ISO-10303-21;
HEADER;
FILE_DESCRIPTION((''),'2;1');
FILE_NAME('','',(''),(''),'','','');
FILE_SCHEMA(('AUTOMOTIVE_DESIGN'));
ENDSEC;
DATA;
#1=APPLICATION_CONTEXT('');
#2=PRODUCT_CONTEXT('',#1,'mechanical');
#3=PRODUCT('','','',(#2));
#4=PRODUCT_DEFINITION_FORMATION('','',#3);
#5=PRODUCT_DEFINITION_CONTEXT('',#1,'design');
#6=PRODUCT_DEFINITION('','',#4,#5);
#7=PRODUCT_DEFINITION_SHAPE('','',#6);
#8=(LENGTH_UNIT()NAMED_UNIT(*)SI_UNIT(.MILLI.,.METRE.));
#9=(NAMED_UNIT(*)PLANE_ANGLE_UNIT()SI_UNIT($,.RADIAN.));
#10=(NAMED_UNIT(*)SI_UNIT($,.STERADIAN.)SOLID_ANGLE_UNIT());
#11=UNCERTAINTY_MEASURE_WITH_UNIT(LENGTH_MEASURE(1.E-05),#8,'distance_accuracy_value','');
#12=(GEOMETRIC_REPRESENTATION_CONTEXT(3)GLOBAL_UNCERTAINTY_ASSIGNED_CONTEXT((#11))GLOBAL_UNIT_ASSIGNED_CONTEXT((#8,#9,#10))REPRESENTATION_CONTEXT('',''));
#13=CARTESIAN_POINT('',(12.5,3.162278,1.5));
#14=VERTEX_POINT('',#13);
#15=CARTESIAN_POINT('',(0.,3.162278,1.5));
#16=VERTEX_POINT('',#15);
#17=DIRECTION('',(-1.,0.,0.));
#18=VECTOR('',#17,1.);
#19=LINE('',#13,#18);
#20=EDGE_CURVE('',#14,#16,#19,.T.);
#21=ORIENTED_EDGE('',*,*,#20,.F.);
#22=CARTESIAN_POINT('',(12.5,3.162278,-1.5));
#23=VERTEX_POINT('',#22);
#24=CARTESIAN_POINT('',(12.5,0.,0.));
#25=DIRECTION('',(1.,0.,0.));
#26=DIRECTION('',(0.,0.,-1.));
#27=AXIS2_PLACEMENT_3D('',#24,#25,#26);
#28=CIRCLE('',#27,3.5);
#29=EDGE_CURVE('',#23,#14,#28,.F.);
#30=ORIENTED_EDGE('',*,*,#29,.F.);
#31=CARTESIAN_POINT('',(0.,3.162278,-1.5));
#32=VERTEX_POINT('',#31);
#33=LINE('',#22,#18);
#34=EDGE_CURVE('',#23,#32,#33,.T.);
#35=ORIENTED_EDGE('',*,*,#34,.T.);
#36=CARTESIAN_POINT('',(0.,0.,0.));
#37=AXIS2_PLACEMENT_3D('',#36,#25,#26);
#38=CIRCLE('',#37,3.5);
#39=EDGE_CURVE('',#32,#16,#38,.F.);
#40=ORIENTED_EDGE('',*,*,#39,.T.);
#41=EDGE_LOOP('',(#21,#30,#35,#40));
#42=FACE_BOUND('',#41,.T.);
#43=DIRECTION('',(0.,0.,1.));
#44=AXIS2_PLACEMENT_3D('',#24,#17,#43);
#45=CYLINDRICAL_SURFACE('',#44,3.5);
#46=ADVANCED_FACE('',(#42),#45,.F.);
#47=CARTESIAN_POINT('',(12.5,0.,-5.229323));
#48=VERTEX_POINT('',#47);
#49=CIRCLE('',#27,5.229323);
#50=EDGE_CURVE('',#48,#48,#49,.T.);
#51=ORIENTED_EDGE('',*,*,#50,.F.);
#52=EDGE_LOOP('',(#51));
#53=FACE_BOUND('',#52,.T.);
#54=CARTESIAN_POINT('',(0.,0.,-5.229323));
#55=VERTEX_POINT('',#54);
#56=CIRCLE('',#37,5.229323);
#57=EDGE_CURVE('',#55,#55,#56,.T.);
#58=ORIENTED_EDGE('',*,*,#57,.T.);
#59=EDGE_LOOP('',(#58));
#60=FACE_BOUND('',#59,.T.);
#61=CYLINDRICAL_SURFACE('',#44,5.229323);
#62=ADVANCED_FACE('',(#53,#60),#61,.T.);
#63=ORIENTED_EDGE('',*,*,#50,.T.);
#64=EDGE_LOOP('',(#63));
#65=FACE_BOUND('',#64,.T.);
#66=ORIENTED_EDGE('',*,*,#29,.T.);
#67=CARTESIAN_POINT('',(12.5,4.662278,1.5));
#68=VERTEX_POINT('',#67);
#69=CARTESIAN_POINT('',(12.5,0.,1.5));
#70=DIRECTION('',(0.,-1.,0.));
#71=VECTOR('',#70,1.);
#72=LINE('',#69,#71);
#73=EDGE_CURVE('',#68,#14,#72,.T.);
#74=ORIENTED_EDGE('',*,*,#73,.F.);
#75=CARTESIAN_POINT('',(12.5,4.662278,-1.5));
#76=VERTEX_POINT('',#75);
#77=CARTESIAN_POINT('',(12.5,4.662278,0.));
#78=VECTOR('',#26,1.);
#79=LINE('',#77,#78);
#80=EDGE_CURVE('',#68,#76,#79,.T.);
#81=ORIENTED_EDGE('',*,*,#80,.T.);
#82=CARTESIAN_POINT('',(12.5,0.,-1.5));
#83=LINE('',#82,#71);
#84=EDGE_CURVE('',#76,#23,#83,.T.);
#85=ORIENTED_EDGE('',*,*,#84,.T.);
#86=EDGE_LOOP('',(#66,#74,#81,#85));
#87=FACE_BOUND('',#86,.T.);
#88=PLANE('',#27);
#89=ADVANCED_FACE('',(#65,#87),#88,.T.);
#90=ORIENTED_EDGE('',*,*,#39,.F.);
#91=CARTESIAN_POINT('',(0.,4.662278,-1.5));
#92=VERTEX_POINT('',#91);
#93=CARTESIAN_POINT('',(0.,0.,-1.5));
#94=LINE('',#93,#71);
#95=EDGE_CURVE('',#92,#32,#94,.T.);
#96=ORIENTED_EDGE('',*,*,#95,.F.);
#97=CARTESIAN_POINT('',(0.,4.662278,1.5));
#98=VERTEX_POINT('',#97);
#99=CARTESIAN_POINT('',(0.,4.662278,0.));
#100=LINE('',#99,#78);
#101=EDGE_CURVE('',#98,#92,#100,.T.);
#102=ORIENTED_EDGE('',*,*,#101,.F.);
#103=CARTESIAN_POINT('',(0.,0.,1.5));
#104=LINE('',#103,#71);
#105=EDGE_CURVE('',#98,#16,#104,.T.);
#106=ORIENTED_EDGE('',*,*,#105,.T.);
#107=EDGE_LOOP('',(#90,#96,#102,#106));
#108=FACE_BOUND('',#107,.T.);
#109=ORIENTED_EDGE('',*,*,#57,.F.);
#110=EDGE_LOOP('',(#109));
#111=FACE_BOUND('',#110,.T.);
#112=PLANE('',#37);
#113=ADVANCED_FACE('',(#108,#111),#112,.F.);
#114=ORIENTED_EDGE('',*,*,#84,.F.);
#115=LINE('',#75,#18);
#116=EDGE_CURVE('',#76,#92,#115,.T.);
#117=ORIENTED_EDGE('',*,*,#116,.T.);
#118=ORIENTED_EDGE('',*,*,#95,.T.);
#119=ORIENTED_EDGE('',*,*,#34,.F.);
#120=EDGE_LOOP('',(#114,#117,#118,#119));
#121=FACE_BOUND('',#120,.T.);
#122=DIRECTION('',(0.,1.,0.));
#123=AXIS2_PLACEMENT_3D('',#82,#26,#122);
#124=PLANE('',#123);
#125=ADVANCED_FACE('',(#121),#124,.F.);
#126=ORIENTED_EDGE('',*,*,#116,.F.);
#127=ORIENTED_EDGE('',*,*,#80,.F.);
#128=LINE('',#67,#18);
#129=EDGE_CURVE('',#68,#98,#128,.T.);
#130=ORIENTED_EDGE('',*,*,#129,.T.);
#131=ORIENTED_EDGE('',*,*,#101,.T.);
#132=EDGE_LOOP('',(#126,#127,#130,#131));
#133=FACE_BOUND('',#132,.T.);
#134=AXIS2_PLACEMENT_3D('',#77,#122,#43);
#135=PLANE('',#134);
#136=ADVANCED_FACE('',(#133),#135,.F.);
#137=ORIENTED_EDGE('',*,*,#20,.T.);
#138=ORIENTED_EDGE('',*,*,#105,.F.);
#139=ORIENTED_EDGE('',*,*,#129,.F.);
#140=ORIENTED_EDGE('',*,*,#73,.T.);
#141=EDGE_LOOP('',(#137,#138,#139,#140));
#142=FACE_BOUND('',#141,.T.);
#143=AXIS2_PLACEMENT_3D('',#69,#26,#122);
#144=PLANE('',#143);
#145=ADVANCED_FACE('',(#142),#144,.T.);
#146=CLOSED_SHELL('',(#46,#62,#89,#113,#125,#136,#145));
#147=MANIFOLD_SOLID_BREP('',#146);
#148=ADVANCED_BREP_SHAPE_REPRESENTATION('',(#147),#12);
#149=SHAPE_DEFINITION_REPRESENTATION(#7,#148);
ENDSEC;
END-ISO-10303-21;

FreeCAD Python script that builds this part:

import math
import FreeCAD as App
import Part
import Sketcher

V = App.Vector
Q = App.Units.Quantity

doc = App.newDocument("Part")
params = doc.addObject("Spreadsheet::Sheet", "Params")
for row, (alias, value) in enumerate([
    ("sketch1_radius", "3.5 mm"),
    ("sketch1_height", "3 mm"),
    ("sketch1_width", "1.5 mm"),
    ("pad1_length", "12.5 mm"),
], start=1):
    params.set(f"A{row}", alias)
    params.set(f"B{row}", "=" + value)
    params.setAlias(f"B{row}", alias)

body = doc.addObject("PartDesign::Body", "Body")

sketch1 = body.newObject("Sketcher::SketchObject", "Sketch")
sketch1.AttachmentSupport = (doc.getObject("YZ_Plane"), [""])
sketch1.MapMode = "FlatFace"
sketch1.addGeometry([
    Part.Circle(V(0, 0, 0), V(0, 0, 1), 5.2),
    Part.LineSegment(V(4.7, 1.5, 0), V(4.7, -1.5, 0)),
    Part.LineSegment(V(4.7, -1.5, 0), V(3.2, -1.5, 0)),
    Part.ArcOfCircle(Part.Circle(V(0, 0, 0), V(0, 0, 1), 3.5), math.radians(25), math.radians(335)),
    Part.LineSegment(V(3.2, 1.5, 0), V(4.7, 1.5, 0)),
], False)
sketch1.addConstraint([
    Sketcher.Constraint("Coincident", 1, 2, 2, 1),
    Sketcher.Constraint("Coincident", 2, 2, 3, 2),
    Sketcher.Constraint("Coincident", 3, 1, 4, 1),
    Sketcher.Constraint("Coincident", 4, 2, 1, 1),
    Sketcher.Constraint("Vertical", 1),
    Sketcher.Constraint("Horizontal", 2),
    Sketcher.Constraint("Horizontal", 4),
    Sketcher.Constraint("Coincident", 0, 3, -1, 1),
    Sketcher.Constraint("Coincident", 3, 3, -1, 1),
    Sketcher.Constraint("Vertical", 2, 2, 3, 1),
    Sketcher.Constraint("Radius", 3, Q("3.5 mm")),
    Sketcher.Constraint("DistanceY", 1, 2, 1, 1, Q("3 mm")),
    Sketcher.Constraint("DistanceX", 2, 2, 2, 1, Q("1.5 mm")),
    Sketcher.Constraint("Diameter", 0, Q("10.458646 mm")),
])
sketch1.setExpression("Constraints[10]", "Params.sketch1_radius")
sketch1.setExpression("Constraints[11]", "Params.sketch1_height")
sketch1.setExpression("Constraints[12]", "Params.sketch1_width")
pad1 = body.newObject("PartDesign::Pad", "Pad")
pad1.Profile = sketch1
pad1.setExpression("Length", "Params.pad1_length")

doc.recompute()
